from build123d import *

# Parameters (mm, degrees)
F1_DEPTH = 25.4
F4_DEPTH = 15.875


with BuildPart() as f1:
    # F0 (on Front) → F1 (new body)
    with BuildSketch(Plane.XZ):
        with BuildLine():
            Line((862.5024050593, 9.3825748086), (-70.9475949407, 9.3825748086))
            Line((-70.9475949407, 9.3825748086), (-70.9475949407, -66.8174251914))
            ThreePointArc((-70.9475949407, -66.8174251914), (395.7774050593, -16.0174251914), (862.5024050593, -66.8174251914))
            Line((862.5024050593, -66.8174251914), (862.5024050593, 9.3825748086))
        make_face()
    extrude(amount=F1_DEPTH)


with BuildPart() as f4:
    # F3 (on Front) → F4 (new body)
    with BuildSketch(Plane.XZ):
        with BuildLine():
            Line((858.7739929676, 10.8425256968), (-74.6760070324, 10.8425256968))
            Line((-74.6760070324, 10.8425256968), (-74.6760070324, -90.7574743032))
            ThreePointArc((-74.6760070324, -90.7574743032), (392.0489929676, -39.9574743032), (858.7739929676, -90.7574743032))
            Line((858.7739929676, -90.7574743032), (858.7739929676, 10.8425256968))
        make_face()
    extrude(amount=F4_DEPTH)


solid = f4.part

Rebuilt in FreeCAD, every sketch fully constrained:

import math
import FreeCAD as App
import Part
import Sketcher
from FreeCAD import Vector
Q = App.Units.Quantity

doc = App.newDocument("Part")
body = doc.addObject("PartDesign::Body", "Body")

# Sketch on XZ plane
sketch1 = doc.addObject("Sketcher::SketchObject", "Sketch")
body.addObject(sketch1)
sketch1.AttachmentSupport = (doc.XZ_Plane, [""])
sketch1.MapMode = "FlatFace"
sketch1.addGeometry(Part.LineSegment(Vector(862.502405, 9.382575, 0), Vector(-70.947595, 9.382575, 0)), False)
sketch1.addGeometry(Part.LineSegment(Vector(-70.947595, 9.382575, 0), Vector(-70.947595, -66.817425, 0)), False)
sketch1.addGeometry(Part.ArcOfCircle(Part.Circle(Vector(395.777405, -2185.435394, 0), Vector(0, 0, 1), 2169.417969), math.radians(77.576356), math.radians(102.423644)), False)
sketch1.addGeometry(Part.LineSegment(Vector(862.502405, -66.817425, 0), Vector(862.502405, 9.382575, 0)), False)
sketch1.addConstraint(Sketcher.Constraint("Coincident", 0, 2, 1, 1))
sketch1.addConstraint(Sketcher.Constraint("Coincident", 1, 2, 2, 2))
sketch1.addConstraint(Sketcher.Constraint("Coincident", 2, 1, 3, 1))
sketch1.addConstraint(Sketcher.Constraint("Coincident", 3, 2, 0, 1))
sketch1.addConstraint(Sketcher.Constraint("Horizontal", 0))
sketch1.addConstraint(Sketcher.Constraint("Vertical", 1))
sketch1.addConstraint(Sketcher.Constraint("Vertical", 3))
sketch1.addConstraint(Sketcher.Constraint("Equal", 1, 3))
sketch1.addConstraint(Sketcher.Constraint("DistanceY", 1, 2, 1, 1, Q("3 in")))
sketch1.addConstraint(Sketcher.Constraint("DistanceX", 0, 2, 0, 1, Q("36.75 in")))
sketch1.addConstraint(Sketcher.Constraint("Radius", 2, Q("2169.417969 mm")))
sketch1.addConstraint(Sketcher.Constraint("DistanceX", -1, 1, 2, 3, Q("395.777405 mm")))
sketch1.addConstraint(Sketcher.Constraint("DistanceY", 2, 3, -1, 1, Q("2185.435394 mm")))
pad1 = doc.addObject("PartDesign::Pad", "Pad")
body.addObject(pad1)
pad1.Profile = sketch1
pad1.Length = Q("1 in")
body2 = doc.addObject("PartDesign::Body", "Body001")

# Sketch on XZ plane
sketch2 = doc.addObject("Sketcher::SketchObject", "Sketch001")
body2.addObject(sketch2)
sketch2.AttachmentSupport = (doc.getObject("XZ_Plane001"), [""])
sketch2.MapMode = "FlatFace"
sketch2.addGeometry(Part.LineSegment(Vector(858.773993, 10.842526, 0), Vector(-74.676007, 10.842526, 0)), False)
sketch2.addGeometry(Part.LineSegment(Vector(-74.676007, 10.842526, 0), Vector(-74.676007, -90.757474, 0)), False)
sketch2.addGeometry(Part.ArcOfCircle(Part.Circle(Vector(392.048993, -2209.375443, 0), Vector(0, 0, 1), 2169.417969), math.radians(77.576356), math.radians(102.423644)), False)
sketch2.addGeometry(Part.LineSegment(Vector(858.773993, -90.757474, 0), Vector(858.773993, 10.842526, 0)), False)
sketch2.addConstraint(Sketcher.Constraint("Coincident", 0, 2, 1, 1))
sketch2.addConstraint(Sketcher.Constraint("Coincident", 1, 2, 2, 2))
sketch2.addConstraint(Sketcher.Constraint("Coincident", 2, 1, 3, 1))
sketch2.addConstraint(Sketcher.Constraint("Coincident", 3, 2, 0, 1))
sketch2.addConstraint(Sketcher.Constraint("Horizontal", 0))
sketch2.addConstraint(Sketcher.Constraint("Vertical", 1))
sketch2.addConstraint(Sketcher.Constraint("Vertical", 3))
sketch2.addConstraint(Sketcher.Constraint("Equal", 1, 3))
sketch2.addConstraint(Sketcher.Constraint("DistanceY", 1, 2, 1, 1, Q("4 in")))
sketch2.addConstraint(Sketcher.Constraint("DistanceX", 0, 2, 0, 1, Q("36.75 in")))
sketch2.addConstraint(Sketcher.Constraint("Radius", 2, Q("2169.417969 mm")))
sketch2.addConstraint(Sketcher.Constraint("DistanceX", -1, 1, 2, 3, Q("392.048993 mm")))
sketch2.addConstraint(Sketcher.Constraint("DistanceY", 2, 3, -1, 1, Q("2209.375443 mm")))
pad2 = doc.addObject("PartDesign::Pad", "Pad001")
body2.addObject(pad2)
pad2.Profile = sketch2
pad2.Length = Q("0.625 in")
body.Visibility = False

doc.recompute()
